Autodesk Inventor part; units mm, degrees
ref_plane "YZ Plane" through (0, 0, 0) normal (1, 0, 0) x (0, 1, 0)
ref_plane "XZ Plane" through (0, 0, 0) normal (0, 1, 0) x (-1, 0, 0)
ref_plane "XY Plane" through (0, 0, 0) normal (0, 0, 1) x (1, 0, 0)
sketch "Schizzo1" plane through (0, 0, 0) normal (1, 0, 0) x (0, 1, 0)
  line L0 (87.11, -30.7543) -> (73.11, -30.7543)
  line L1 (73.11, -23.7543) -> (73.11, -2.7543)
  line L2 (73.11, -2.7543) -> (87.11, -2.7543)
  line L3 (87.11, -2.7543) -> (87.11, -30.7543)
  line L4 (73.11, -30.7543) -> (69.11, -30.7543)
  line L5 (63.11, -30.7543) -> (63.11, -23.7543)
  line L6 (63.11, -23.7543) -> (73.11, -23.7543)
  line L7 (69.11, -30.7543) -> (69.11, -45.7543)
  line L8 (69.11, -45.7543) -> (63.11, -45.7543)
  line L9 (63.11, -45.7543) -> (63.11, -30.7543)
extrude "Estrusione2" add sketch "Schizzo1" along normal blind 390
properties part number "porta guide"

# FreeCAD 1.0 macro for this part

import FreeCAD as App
import Part
import Sketcher

V = App.Vector


def add_polygon(sketch, points):
    """Adds a closed chain of lines whose ends are joined by coincident constraints."""
    first, n = sketch.GeometryCount, len(points)
    for a, b in zip(points, points[1:] + points[:1]):
        sketch.addGeometry(Part.LineSegment(App.Vector(*a, 0), App.Vector(*b, 0)), False)
    for i in range(n):
        sketch.addConstraint(Sketcher.Constraint("Coincident", first + i, 2, first + (i + 1) % n, 1))

doc = App.newDocument("Part")
body = doc.addObject("PartDesign::Body", "Body")

# Sketch on YZ plane
sketch1 = doc.addObject("Sketcher::SketchObject", "Sketch")
body.addObject(sketch1)
sketch1.AttachmentSupport = (doc.YZ_Plane, [""])
sketch1.MapMode = "FlatFace"
add_polygon(sketch1, [(69, -31), (87, -31), (87, -3), (73, -3), (73, -24), (63, -24), (63, -46), (69, -46)])  # lines 0-7
sketch1.addConstraint(Sketcher.Constraint("Horizontal", 0))
sketch1.addConstraint(Sketcher.Constraint("Vertical", 1))
sketch1.addConstraint(Sketcher.Constraint("Horizontal", 2))
sketch1.addConstraint(Sketcher.Constraint("Vertical", 3))
sketch1.addConstraint(Sketcher.Constraint("Horizontal", 4))
sketch1.addConstraint(Sketcher.Constraint("Vertical", 5))
sketch1.addConstraint(Sketcher.Constraint("Horizontal", 6))
sketch1.addConstraint(Sketcher.Constraint("Vertical", 7))
sketch1.addConstraint(Sketcher.Constraint("DistanceX", 0, 1, 0, 2, 18.0))
sketch1.addConstraint(Sketcher.Constraint("DistanceX", 2, 2, 2, 1, 14.0))
sketch1.addConstraint(Sketcher.Constraint("DistanceX", 4, 2, 4, 1, 10.0))
sketch1.addConstraint(Sketcher.Constraint("DistanceY", 1, 1, 1, 2, 28.0))
sketch1.addConstraint(Sketcher.Constraint("DistanceY", 3, 2, 3, 1, 21.0))
sketch1.addConstraint(Sketcher.Constraint("DistanceY", 5, 2, 5, 1, 22.0))
sketch1.addConstraint(Sketcher.Constraint("DistanceX", -1, 1, 0, 2, 87.11))
sketch1.addConstraint(Sketcher.Constraint("DistanceY", 0, 2, -1, 1, 30.7543))
pad1 = doc.addObject("PartDesign::Pad", "Pad")
body.addObject(pad1)
pad1.Profile = sketch1
pad1.Length = 390

doc.recompute()
